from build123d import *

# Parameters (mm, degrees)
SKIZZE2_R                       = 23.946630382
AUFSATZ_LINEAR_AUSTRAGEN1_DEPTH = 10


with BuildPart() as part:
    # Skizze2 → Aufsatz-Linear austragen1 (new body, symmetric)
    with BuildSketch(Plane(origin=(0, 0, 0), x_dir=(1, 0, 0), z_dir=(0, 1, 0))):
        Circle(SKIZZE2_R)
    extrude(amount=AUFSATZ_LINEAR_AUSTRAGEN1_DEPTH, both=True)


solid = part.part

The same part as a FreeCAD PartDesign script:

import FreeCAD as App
import Part
import Sketcher

V = App.Vector
Q = App.Units.Quantity

doc = App.newDocument("Part")
params = doc.addObject("Spreadsheet::Sheet", "Params")
for row, (alias, value) in enumerate([
    ("pad1_length", "20 mm"),
], start=1):
    params.set(f"A{row}", alias)
    params.set(f"B{row}", "=" + value)
    params.setAlias(f"B{row}", alias)

body = doc.addObject("PartDesign::Body", "Body")

sketch1 = body.newObject("Sketcher::SketchObject", "Sketch")
sketch1.AttachmentSupport = (doc.getObject("XZ_Plane"), [""])
sketch1.MapMode = "FlatFace"
sketch1.addGeometry(Part.Circle(V(0, 0, 0), V(0, 0, 1), 24), False)
sketch1.addConstraint(Sketcher.Constraint("Coincident", 0, 3, -1, 1))
sketch1.addConstraint(Sketcher.Constraint("Diameter", 0, Q("47.893261 mm")))
pad1 = body.newObject("PartDesign::Pad", "Pad")
pad1.Profile = sketch1
pad1.setExpression("Length", "Params.pad1_length")
pad1.Midplane = True

doc.recompute()
